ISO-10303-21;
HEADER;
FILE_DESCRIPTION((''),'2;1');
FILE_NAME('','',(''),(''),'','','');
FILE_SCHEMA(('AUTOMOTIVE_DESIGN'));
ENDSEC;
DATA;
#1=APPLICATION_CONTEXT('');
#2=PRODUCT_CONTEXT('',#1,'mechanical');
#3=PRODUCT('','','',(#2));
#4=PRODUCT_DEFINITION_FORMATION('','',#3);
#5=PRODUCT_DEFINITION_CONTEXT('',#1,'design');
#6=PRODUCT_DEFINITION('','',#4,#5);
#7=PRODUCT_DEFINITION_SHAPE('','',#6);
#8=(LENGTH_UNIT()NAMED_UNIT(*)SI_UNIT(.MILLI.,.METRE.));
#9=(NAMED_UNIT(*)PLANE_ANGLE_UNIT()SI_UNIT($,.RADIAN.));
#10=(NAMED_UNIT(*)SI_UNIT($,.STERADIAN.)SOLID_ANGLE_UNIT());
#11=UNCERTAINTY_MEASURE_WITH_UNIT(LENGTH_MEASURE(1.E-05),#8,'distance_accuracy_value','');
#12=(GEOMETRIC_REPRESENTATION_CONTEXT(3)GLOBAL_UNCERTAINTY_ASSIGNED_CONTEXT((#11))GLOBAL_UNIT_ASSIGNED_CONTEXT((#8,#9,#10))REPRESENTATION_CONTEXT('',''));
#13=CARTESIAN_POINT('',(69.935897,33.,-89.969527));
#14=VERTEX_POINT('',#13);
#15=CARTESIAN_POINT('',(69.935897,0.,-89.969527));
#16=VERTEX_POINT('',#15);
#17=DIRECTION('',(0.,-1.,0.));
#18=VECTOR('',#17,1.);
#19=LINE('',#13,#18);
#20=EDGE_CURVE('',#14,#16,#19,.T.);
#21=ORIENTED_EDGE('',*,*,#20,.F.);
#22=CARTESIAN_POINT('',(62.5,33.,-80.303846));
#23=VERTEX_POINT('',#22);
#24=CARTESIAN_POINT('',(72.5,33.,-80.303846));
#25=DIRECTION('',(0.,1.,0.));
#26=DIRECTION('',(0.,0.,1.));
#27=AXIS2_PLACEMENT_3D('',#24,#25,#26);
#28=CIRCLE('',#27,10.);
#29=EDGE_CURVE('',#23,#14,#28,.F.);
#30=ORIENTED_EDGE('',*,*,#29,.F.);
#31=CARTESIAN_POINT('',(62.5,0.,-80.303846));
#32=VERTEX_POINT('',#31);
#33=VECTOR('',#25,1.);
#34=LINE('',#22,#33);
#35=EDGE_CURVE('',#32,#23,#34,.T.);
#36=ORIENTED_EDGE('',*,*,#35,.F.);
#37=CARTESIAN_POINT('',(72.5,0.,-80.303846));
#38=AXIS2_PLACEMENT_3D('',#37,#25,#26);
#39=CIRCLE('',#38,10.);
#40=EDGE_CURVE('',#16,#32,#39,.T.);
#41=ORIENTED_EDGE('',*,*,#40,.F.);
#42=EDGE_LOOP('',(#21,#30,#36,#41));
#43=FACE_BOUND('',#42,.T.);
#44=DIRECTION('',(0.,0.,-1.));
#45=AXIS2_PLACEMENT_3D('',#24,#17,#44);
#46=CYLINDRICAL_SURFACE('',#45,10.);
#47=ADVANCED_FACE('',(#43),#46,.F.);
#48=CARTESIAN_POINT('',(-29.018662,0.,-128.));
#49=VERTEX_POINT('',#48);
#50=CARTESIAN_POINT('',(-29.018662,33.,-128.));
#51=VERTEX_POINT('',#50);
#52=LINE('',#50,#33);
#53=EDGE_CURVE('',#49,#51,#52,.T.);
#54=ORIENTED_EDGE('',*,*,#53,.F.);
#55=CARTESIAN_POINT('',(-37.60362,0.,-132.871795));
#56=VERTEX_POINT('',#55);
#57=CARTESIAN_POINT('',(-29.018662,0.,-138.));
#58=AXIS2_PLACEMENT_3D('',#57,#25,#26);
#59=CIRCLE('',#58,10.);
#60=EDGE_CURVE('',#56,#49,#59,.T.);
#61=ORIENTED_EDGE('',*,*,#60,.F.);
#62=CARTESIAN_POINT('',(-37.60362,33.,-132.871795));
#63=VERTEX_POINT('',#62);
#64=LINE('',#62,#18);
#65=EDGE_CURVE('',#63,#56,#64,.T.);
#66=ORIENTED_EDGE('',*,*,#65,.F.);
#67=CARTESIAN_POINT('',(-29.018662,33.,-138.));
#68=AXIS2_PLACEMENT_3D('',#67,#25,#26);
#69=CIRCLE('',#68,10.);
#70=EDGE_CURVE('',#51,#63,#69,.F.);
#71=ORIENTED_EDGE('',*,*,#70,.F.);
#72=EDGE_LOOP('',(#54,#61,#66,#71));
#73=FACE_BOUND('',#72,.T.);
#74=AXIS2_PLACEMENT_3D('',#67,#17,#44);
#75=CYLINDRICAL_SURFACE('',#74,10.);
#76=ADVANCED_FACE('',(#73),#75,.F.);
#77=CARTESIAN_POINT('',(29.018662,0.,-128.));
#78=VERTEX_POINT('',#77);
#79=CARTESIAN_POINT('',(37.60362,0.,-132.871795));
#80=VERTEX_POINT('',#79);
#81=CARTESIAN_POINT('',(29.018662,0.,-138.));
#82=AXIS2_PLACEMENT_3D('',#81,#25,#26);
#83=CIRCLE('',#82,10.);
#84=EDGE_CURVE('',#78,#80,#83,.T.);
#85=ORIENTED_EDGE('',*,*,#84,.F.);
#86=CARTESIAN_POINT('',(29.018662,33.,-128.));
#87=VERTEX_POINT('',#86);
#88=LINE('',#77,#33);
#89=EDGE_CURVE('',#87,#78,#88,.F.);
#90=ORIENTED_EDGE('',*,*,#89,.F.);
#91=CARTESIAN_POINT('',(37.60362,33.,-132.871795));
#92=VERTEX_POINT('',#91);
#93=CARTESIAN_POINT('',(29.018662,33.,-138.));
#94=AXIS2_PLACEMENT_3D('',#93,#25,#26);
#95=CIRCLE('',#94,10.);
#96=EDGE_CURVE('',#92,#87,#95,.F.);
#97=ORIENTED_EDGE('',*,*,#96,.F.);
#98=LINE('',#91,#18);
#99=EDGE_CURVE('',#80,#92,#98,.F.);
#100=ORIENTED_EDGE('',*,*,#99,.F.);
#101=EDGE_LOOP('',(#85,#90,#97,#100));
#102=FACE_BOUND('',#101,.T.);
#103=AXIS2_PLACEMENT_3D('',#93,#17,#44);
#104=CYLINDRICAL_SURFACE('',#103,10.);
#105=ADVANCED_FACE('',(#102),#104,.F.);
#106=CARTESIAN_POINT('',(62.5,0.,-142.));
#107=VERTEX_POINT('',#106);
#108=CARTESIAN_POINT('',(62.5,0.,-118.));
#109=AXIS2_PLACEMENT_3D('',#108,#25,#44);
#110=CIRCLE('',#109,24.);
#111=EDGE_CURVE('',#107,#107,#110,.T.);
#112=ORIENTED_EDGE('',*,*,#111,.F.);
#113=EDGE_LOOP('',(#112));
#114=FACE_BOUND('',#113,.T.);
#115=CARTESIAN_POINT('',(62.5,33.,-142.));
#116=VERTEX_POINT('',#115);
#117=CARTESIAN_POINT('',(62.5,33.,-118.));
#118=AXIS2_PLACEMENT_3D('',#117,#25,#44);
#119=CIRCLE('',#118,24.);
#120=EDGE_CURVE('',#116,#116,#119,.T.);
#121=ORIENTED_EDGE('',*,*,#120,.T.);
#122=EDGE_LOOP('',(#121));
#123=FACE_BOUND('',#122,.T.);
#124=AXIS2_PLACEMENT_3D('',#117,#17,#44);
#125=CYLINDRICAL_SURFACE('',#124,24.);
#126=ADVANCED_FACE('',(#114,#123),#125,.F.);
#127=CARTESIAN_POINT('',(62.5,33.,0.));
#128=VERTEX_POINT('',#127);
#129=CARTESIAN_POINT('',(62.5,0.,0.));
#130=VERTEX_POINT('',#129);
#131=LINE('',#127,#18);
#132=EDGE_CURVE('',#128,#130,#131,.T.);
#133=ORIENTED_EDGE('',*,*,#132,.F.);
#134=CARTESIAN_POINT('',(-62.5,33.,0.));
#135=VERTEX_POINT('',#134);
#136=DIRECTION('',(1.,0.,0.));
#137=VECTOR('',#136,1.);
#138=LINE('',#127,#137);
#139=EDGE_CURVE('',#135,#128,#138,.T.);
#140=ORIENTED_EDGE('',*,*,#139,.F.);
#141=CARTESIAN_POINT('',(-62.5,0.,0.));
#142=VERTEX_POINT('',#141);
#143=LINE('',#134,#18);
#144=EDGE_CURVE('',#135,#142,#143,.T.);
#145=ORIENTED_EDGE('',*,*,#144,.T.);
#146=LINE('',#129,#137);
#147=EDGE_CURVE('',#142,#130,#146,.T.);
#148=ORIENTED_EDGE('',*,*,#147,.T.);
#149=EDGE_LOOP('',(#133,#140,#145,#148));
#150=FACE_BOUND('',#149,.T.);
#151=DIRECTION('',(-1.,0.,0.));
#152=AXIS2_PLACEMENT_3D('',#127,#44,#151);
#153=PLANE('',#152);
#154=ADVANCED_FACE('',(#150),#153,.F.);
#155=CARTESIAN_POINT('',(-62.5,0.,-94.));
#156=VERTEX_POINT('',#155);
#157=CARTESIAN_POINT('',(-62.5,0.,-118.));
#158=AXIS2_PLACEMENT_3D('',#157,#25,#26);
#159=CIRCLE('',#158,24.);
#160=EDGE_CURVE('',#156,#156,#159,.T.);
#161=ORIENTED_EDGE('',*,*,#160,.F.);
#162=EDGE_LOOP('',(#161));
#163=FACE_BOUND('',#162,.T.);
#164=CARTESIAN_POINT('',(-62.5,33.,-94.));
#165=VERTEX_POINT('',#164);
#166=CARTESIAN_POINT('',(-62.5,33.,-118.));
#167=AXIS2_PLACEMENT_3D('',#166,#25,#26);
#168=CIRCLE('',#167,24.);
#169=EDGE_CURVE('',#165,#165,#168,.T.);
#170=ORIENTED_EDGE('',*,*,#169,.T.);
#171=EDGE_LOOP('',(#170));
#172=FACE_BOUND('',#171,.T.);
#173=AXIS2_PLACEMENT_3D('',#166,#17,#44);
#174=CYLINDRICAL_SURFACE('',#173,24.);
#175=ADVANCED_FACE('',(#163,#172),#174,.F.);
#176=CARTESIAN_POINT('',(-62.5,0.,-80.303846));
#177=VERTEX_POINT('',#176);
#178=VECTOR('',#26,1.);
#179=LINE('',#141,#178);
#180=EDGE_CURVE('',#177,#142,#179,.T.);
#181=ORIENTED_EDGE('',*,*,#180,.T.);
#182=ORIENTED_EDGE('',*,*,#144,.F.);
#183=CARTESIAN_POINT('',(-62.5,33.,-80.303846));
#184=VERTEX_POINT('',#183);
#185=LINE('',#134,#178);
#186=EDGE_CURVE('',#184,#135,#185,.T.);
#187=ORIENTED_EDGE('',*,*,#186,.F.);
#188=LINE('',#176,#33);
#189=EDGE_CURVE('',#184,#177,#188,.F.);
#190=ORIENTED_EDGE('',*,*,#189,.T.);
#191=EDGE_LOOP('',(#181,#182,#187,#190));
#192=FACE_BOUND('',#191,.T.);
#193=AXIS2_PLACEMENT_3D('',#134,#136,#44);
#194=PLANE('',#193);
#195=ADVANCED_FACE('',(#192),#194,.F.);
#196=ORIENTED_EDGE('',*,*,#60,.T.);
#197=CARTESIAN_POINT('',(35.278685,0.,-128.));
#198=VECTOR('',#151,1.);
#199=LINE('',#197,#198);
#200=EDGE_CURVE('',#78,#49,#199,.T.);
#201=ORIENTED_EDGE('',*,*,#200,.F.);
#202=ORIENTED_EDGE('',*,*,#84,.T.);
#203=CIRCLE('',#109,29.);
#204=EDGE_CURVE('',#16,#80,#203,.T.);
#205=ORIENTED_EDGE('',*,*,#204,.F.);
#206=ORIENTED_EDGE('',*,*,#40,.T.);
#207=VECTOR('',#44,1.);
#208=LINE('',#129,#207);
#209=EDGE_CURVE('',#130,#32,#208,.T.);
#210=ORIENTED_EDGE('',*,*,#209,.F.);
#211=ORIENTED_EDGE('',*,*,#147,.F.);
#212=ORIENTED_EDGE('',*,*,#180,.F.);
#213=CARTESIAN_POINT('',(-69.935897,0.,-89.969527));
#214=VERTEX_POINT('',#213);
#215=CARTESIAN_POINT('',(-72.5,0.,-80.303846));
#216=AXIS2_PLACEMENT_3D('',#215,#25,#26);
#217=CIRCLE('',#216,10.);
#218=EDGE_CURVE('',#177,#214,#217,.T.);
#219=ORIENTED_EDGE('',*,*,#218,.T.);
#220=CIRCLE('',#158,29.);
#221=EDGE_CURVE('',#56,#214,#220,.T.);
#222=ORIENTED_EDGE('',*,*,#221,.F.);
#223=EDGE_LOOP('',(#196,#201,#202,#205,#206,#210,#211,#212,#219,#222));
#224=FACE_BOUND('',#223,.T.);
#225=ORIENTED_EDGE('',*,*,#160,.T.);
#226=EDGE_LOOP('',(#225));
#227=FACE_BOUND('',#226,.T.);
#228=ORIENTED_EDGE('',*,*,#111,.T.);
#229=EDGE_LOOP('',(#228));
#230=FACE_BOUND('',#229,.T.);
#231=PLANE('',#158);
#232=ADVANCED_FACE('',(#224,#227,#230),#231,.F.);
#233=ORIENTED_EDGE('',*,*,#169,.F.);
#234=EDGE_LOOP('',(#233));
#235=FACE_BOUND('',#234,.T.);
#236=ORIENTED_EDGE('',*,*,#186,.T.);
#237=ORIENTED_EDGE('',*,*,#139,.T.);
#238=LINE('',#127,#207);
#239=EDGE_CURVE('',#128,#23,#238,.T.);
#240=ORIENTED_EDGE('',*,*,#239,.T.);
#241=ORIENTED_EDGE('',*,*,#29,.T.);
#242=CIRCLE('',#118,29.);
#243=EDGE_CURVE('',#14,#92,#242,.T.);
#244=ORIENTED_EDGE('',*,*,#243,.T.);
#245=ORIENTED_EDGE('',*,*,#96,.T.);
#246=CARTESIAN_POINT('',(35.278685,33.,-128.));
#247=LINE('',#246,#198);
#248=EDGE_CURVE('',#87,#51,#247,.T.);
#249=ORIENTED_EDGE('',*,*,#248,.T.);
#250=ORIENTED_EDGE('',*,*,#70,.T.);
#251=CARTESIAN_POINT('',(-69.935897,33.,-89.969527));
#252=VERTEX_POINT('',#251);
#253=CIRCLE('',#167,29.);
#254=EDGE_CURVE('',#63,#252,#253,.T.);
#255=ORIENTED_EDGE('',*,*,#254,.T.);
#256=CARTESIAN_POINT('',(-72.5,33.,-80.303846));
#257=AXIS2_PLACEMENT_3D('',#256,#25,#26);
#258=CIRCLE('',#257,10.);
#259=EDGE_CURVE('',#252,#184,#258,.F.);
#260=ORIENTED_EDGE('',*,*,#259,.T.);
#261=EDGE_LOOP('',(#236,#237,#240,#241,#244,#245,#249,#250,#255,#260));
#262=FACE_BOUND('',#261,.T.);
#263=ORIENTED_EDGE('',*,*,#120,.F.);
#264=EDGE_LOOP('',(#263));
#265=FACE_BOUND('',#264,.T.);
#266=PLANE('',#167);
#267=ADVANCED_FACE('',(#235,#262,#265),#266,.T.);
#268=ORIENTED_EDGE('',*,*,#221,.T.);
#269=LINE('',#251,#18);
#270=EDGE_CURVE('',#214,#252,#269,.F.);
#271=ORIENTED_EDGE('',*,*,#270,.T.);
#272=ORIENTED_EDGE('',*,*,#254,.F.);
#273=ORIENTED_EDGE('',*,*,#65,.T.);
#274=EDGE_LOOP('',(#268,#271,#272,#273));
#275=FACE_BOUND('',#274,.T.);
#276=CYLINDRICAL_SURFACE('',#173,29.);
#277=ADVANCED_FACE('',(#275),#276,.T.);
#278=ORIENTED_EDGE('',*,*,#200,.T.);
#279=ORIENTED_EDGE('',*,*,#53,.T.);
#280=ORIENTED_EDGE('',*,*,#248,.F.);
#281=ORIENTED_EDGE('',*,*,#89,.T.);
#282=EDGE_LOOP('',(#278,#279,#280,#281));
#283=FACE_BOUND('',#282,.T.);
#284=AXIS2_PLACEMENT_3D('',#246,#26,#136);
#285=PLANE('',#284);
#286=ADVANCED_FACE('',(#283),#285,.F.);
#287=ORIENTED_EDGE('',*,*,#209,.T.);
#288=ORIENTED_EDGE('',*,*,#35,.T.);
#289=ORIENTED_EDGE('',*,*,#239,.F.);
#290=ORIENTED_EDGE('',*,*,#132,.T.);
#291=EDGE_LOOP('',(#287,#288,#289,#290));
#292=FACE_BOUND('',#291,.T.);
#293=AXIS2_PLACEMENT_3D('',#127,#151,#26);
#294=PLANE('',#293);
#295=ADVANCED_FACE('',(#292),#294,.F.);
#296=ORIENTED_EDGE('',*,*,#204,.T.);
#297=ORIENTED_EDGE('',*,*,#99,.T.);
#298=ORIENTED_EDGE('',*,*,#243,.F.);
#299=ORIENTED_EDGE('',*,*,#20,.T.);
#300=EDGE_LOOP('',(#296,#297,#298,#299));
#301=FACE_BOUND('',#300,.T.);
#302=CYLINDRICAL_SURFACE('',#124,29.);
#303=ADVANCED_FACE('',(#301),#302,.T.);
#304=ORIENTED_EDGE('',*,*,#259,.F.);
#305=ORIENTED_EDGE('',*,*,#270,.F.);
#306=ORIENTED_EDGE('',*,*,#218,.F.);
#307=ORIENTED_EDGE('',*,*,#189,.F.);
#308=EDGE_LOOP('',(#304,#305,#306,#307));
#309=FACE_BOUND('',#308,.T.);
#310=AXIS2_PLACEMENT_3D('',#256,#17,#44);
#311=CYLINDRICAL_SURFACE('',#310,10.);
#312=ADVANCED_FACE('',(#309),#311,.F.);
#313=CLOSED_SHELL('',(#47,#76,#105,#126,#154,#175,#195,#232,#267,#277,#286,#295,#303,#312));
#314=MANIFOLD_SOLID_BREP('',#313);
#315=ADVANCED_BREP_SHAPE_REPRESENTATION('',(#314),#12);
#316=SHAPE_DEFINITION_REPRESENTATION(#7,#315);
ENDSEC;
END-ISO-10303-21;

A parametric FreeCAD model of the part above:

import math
import FreeCAD as App
import Part
import Sketcher
Q = App.Units.Quantity


def edges_at(feature, points):
    """Names of the edges that pass closest to the given points."""
    edges = feature.Shape.Edges
    near = lambda p: min(range(len(edges)), key=lambda i: edges[i].distToShape(Part.Vertex(*p))[0])
    return sorted({f"Edge{near(p) + 1}" for p in points})

doc = App.newDocument("Part")
body = doc.addObject("PartDesign::Body", "Body")

sketch1 = body.newObject("Sketcher::SketchObject", "Sketch")
sketch1.AttachmentSupport = (doc.getObject("XZ_Plane"), [""])
sketch1.MapMode = "FlatFace"
sketch1.addGeometry(Part.LineSegment(App.Vector(-62, 0, 0), App.Vector(62, 0, 0)), False)
sketch1.addGeometry(Part.LineSegment(App.Vector(62, 0, 0), App.Vector(62, -89, 0)), False)
sketch1.addGeometry(Part.ArcOfCircle(Part.Circle(App.Vector(62, -118, 0), App.Vector(0, 0, 1), 29), math.radians(-160), math.radians(90)), False)
sketch1.addGeometry(Part.LineSegment(App.Vector(35, -128, 0), App.Vector(-35, -128, 0)), False)
sketch1.addGeometry(Part.ArcOfCircle(Part.Circle(App.Vector(-62, -118, 0), App.Vector(0, 0, 1), 29), math.radians(90), math.radians(340)), False)
sketch1.addGeometry(Part.LineSegment(App.Vector(-62, -89, 0), App.Vector(-62, 0, 0)), False)
sketch1.addGeometry(Part.Circle(App.Vector(62, -118, 0), App.Vector(0, 0, 1), 24), False)
sketch1.addGeometry(Part.Circle(App.Vector(-62, -118, 0), App.Vector(0, 0, 1), 24), False)
sketch1.addConstraint(Sketcher.Constraint("Coincident", 0, 2, 1, 1))
sketch1.addConstraint(Sketcher.Constraint("Coincident", 1, 2, 2, 2))
sketch1.addConstraint(Sketcher.Constraint("Coincident", 2, 1, 3, 1))
sketch1.addConstraint(Sketcher.Constraint("Coincident", 3, 2, 4, 2))
sketch1.addConstraint(Sketcher.Constraint("Coincident", 4, 1, 5, 1))
sketch1.addConstraint(Sketcher.Constraint("Coincident", 5, 2, 0, 1))
sketch1.addConstraint(Sketcher.Constraint("Horizontal", 0))
sketch1.addConstraint(Sketcher.Constraint("Vertical", 1))
sketch1.addConstraint(Sketcher.Constraint("Horizontal", 3))
sketch1.addConstraint(Sketcher.Constraint("Vertical", 5))
sketch1.addConstraint(Sketcher.Constraint("Coincident", 6, 3, 2, 3))
sketch1.addConstraint(Sketcher.Constraint("Coincident", 7, 3, 4, 3))
sketch1.addConstraint(Sketcher.Constraint("Equal", 2, 4))
sketch1.addConstraint(Sketcher.Constraint("Equal", 6, 7))
sketch1.addConstraint(Sketcher.Constraint("Symmetric", 0, 2, 5, 2, -1, 1))
sketch1.addConstraint(Sketcher.Constraint("Symmetric", 2, 3, 4, 3, -2))
sketch1.addConstraint(Sketcher.Constraint("Vertical", 6, 3, 0, 2))
sketch1.addConstraint(Sketcher.Constraint("Diameter", 6, Q("48 mm")))
sketch1.addConstraint(Sketcher.Constraint("Radius", 2, Q("29 mm")))
sketch1.addConstraint(Sketcher.Constraint("DistanceX", 0, 1, 0, 2, Q("125 mm")))
sketch1.addConstraint(Sketcher.Constraint("DistanceY", 1, 2, 1, 1, Q("89 mm")))
sketch1.addConstraint(Sketcher.Constraint("DistanceY", 2, 1, -1, 1, Q("128 mm")))
pad1 = body.newObject("PartDesign::Pad", "Pad")
pad1.Profile = sketch1
pad1.Length = 33
pad1.Reversed = True
doc.recompute()

fillet = body.newObject("PartDesign::Fillet", "Fillet")
fillet.Base = (pad1, edges_at(pad1, [
    (-62.5, 16.5, -89),
    (-35.279, 16.5, -128),
    (35.279, 16.5, -128),
    (62.5, 16.5, -89),
]))
fillet.Radius = 10

doc.recompute()
